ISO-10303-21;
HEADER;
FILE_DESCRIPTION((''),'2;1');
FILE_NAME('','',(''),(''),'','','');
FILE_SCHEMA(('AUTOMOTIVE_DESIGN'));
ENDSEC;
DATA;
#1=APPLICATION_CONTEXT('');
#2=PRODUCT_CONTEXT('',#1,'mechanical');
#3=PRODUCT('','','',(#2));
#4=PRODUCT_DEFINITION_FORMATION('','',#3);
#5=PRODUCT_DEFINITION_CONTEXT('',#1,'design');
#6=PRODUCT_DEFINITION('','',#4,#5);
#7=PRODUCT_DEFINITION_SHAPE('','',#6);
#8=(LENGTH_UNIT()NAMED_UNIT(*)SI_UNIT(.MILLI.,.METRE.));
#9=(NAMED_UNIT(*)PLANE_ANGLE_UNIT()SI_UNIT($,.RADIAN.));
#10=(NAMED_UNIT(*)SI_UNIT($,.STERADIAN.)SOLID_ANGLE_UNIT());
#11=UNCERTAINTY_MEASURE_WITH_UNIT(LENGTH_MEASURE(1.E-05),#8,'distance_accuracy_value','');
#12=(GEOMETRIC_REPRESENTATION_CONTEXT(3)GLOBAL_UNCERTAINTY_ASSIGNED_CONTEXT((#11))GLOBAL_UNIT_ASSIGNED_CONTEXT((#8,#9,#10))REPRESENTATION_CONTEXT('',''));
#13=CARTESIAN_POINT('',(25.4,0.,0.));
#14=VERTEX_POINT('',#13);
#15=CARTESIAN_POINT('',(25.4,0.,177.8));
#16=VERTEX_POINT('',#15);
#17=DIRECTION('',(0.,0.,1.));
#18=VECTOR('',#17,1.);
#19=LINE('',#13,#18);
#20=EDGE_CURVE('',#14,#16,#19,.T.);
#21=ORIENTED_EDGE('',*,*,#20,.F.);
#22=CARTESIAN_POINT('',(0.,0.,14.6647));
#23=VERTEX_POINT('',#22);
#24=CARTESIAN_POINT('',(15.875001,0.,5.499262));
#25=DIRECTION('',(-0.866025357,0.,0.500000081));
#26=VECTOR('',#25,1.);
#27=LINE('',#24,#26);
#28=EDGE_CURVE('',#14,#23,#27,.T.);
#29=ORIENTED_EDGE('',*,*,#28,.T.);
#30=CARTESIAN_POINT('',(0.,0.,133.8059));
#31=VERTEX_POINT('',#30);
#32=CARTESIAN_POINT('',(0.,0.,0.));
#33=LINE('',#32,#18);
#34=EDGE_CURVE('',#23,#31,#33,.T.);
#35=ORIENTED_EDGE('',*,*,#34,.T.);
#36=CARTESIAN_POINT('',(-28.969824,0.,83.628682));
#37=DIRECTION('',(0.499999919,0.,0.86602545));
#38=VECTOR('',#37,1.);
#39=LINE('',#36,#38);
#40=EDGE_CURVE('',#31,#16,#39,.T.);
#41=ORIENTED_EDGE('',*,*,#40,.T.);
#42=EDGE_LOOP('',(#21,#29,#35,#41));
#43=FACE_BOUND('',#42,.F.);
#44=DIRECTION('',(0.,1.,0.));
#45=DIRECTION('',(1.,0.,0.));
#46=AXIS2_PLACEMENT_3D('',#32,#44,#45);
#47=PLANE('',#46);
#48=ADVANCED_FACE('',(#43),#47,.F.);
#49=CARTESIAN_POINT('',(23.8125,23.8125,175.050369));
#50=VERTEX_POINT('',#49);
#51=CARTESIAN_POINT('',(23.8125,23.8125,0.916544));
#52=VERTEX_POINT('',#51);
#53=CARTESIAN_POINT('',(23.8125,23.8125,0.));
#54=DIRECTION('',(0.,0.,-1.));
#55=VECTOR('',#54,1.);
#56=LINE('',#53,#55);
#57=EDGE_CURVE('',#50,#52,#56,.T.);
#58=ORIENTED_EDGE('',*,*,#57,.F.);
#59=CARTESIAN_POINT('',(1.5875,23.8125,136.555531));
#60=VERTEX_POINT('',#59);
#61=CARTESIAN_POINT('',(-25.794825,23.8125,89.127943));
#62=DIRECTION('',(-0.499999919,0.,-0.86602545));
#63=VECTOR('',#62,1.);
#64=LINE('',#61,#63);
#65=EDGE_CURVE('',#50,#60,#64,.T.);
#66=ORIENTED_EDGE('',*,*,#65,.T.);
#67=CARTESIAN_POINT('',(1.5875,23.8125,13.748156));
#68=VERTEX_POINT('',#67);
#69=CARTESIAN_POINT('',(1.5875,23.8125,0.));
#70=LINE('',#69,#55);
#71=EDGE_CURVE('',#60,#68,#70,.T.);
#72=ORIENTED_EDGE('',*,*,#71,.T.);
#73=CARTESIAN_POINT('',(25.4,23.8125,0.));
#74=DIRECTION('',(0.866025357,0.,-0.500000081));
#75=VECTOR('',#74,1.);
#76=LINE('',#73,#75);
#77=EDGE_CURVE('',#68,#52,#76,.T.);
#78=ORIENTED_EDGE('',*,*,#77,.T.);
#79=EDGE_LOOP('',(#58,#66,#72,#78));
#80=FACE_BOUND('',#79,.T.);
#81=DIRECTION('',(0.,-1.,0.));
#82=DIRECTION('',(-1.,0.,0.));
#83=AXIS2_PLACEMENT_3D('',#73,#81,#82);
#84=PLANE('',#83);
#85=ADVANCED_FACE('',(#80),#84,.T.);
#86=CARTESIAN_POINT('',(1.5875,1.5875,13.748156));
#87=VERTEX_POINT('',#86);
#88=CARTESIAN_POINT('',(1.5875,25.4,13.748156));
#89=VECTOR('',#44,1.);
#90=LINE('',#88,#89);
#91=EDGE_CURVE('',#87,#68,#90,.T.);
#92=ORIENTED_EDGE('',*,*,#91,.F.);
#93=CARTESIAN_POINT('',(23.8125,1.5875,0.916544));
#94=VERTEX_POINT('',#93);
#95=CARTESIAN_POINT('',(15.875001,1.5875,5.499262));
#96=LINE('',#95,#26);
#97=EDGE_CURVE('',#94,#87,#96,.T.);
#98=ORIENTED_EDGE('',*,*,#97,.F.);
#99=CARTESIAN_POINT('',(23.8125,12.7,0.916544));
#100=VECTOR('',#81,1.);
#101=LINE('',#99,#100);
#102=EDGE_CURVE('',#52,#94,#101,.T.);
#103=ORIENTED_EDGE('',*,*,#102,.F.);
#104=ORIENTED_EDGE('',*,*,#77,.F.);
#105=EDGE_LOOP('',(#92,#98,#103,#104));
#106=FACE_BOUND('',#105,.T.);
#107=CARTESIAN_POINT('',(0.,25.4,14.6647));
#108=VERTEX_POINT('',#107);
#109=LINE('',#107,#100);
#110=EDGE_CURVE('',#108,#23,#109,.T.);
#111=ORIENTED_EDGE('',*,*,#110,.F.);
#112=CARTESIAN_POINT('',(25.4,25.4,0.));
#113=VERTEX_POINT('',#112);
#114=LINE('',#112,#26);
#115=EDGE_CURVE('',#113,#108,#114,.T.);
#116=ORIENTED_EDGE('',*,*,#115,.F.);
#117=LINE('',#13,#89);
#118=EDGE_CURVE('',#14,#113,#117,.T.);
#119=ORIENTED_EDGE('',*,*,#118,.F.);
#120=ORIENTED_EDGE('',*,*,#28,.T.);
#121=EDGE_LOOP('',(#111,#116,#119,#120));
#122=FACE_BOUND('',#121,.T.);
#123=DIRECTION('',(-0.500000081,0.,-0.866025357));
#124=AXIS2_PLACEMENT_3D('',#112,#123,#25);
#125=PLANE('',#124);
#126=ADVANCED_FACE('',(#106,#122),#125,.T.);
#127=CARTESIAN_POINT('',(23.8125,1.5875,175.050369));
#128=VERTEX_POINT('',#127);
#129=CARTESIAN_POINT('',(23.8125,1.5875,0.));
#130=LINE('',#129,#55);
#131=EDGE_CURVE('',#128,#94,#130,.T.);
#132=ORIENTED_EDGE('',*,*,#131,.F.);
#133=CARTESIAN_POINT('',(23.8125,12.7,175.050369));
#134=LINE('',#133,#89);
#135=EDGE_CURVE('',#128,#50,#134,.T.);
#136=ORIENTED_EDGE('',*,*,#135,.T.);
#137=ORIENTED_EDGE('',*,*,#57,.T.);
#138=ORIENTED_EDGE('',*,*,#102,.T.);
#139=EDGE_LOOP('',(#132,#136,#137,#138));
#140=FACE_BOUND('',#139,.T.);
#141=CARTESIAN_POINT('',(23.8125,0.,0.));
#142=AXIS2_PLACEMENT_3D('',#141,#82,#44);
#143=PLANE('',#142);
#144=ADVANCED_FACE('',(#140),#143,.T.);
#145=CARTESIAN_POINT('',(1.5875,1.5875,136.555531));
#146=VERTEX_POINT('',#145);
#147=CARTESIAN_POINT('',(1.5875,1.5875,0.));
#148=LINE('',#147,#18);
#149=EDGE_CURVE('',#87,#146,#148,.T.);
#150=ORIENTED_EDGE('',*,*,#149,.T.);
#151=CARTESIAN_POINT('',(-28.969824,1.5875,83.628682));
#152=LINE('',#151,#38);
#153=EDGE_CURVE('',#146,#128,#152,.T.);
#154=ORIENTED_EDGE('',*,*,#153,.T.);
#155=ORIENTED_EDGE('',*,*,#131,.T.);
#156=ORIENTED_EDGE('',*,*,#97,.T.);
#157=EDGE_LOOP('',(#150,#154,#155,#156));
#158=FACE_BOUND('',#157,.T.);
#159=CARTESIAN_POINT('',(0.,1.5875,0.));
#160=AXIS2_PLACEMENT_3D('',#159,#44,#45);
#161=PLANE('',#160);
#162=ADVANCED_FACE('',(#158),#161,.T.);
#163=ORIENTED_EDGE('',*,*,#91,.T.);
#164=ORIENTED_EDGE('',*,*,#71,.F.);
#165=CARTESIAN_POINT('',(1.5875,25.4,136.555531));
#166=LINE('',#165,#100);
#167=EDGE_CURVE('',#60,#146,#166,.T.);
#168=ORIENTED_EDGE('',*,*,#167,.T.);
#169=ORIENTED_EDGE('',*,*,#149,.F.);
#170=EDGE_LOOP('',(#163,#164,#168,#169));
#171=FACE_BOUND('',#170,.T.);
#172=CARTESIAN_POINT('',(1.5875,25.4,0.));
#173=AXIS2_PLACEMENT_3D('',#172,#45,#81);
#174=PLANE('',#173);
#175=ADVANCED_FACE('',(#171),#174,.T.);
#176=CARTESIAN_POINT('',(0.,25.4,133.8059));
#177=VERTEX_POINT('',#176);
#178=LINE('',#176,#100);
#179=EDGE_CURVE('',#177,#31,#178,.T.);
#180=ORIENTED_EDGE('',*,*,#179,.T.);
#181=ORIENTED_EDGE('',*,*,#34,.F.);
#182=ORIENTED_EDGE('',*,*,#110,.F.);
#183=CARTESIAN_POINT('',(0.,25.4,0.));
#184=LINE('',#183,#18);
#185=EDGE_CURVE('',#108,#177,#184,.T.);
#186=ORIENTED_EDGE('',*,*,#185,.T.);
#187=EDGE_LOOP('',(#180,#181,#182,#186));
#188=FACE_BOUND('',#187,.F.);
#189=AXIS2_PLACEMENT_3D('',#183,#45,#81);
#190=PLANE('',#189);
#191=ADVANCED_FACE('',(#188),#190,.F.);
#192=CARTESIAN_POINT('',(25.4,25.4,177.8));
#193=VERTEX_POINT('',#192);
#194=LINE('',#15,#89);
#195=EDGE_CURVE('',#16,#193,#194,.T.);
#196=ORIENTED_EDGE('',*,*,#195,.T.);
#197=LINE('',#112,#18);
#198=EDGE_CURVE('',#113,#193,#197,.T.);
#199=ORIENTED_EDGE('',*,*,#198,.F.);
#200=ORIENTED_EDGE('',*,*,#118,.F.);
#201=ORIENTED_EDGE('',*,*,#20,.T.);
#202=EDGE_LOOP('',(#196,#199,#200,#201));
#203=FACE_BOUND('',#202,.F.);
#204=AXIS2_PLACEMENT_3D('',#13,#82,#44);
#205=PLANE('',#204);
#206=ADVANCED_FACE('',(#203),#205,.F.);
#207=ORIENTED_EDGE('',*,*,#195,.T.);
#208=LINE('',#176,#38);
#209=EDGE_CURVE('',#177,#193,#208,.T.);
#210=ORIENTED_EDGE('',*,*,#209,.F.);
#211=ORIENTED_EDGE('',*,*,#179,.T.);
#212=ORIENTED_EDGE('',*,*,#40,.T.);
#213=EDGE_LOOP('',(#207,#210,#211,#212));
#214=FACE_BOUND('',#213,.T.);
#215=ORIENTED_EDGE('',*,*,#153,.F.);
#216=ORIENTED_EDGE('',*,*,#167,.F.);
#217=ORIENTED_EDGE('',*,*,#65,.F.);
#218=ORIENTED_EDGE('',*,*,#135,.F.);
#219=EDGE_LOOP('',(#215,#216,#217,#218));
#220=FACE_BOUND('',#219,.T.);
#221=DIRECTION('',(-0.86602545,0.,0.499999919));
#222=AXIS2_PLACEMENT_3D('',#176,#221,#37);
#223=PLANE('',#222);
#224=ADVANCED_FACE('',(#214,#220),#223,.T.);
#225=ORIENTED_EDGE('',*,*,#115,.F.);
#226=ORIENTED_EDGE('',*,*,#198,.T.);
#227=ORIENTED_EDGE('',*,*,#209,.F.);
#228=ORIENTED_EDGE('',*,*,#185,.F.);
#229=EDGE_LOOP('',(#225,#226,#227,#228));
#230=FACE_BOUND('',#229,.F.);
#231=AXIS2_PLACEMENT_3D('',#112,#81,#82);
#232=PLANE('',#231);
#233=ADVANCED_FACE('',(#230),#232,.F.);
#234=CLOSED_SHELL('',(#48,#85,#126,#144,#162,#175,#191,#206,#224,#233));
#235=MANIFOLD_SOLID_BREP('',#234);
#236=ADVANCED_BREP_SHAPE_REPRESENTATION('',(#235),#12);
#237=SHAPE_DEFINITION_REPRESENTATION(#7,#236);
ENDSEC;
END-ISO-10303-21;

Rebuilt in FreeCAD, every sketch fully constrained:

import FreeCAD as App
import Part
import Sketcher
from FreeCAD import Vector
Q = App.Units.Quantity


def faces_at(feature, points):
    """Names of the faces that lie closest to the given points."""
    faces = feature.Shape.Faces
    near = lambda p: min(range(len(faces)), key=lambda i: faces[i].distToShape(Part.Vertex(*p))[0])
    return sorted({f"Face{near(p) + 1}" for p in points})

doc = App.newDocument("Part")
body = doc.addObject("PartDesign::Body", "Body")

# Sketch on XY plane
sketch1 = body.newObject("Sketcher::SketchObject", "Sketch")
sketch1.AttachmentSupport = (doc.getObject("XY_Plane"), [""])
sketch1.MapMode = "FlatFace"
sketch1.addGeometry([
    Part.LineSegment(Vector(0, 25.4, 0), Vector(0, 0, 0)),
    Part.LineSegment(Vector(0, 0, 0), Vector(25.4, 0, 0)),
    Part.LineSegment(Vector(25.4, 0, 0), Vector(25.4, 25.4, 0)),
    Part.LineSegment(Vector(25.4, 25.4, 0), Vector(0, 25.4, 0)),
], False)
sketch1.addConstraint([
    Sketcher.Constraint("Coincident", 0, 2, 1, 1),
    Sketcher.Constraint("Coincident", 1, 2, 2, 1),
    Sketcher.Constraint("Coincident", 2, 2, 3, 1),
    Sketcher.Constraint("Coincident", 3, 2, 0, 1),
    Sketcher.Constraint("Vertical", 0),
    Sketcher.Constraint("Horizontal", 1),
    Sketcher.Constraint("Vertical", 2),
    Sketcher.Constraint("Horizontal", 3),
    Sketcher.Constraint("Coincident", 0, 2, -1, 1),
    Sketcher.Constraint("Equal", 3, 0),
    Sketcher.Constraint("DistanceX", 1, 1, 1, 2, Q("1 in")),
])
pad1 = body.newObject("PartDesign::Pad", "Pad")
pad1.Profile = sketch1
pad1.Length = Q("7 in")
doc.recompute()

thickness = body.newObject("PartDesign::Thickness", "Thickness")
thickness.Base = (pad1, faces_at(pad1, [(8.467, 16.933, 0), (8.467, 16.933, 177.8)]))
thickness.Value = Q("0.0625 in")
thickness.Reversed = True
thickness.Join = "Intersection"

# Sketch on XZ plane
sketch2 = body.newObject("Sketcher::SketchObject", "Sketch001")
sketch2.AttachmentSupport = (doc.getObject("XZ_Plane"), [""])
sketch2.MapMode = "FlatFace"
sketch2.AttachmentOffset = App.Placement(Vector(0, 0, -1 * 25.4), App.Rotation())
sketch2.addGeometry([
    Part.LineSegment(Vector(0, 133.8059, 0), Vector(0, 177.8, 0)),  # 0
    Part.LineSegment(Vector(0, 177.8, 0), Vector(25.4, 177.8, 0)),  # 1
    Part.LineSegment(Vector(25.4, 177.8, 0), Vector(0, 133.8059, 0)),  # 2
    Part.LineSegment(Vector(0, 0, 0), Vector(0, 14.6647, 0)),  # 3
    Part.LineSegment(Vector(0, 14.6647, 0), Vector(25.4, 0, 0)),  # 4
    Part.LineSegment(Vector(25.4, 0, 0), Vector(0, 0, 0)),  # 5
], False)
sketch2.addConstraint([
    Sketcher.Constraint("Coincident", 0, 2, 1, 1),
    Sketcher.Constraint("Coincident", 1, 2, 2, 1),
    Sketcher.Constraint("Coincident", 2, 2, 0, 1),
    Sketcher.Constraint("Coincident", 3, 2, 4, 1),
    Sketcher.Constraint("Coincident", 4, 2, 5, 1),
    Sketcher.Constraint("Coincident", 5, 2, 3, 1),
    Sketcher.Constraint("Vertical", 0),
    Sketcher.Constraint("Horizontal", 1),
    Sketcher.Constraint("Vertical", 3),
    Sketcher.Constraint("Horizontal", 5),
    Sketcher.Constraint("Coincident", 5, 2, -1, 1),
    Sketcher.Constraint("PointOnObject", 0, 2, -2),
    Sketcher.Constraint("Perpendicular", 2, 4),
    Sketcher.Constraint("Vertical", 1, 2, 4, 2),
    Sketcher.Constraint("Angle", 4, Q("-30 deg")),
    Sketcher.Constraint("DistanceX", 1, 1, 1, 2, Q("1 in")),
    Sketcher.Constraint("DistanceY", -1, 1, 0, 2, Q("7 in")),
])
pocket1 = body.newObject("PartDesign::Pocket", "Pocket")
pocket1.Profile = sketch2
pocket1.Type = "ThroughAll"
pocket1.Reversed = True

doc.recompute()
